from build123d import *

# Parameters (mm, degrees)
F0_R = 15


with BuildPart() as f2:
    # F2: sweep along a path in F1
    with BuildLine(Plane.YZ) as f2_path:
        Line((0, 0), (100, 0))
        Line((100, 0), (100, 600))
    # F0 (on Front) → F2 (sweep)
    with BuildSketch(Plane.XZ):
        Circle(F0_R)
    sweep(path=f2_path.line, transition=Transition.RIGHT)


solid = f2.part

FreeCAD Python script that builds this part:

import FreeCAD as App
import Part
import Sketcher

V = App.Vector
Q = App.Units.Quantity

doc = App.newDocument("Part")
params = doc.addObject("Spreadsheet::Sheet", "Params")
for row, (alias, value) in enumerate([
    ("sketch1_diameter", "30 mm"),
    ("sketch2_width", "100 mm"),
    ("sketch2_height", "600 mm"),
], start=1):
    params.set(f"A{row}", alias)
    params.set(f"B{row}", "=" + value)
    params.setAlias(f"B{row}", alias)

body = doc.addObject("PartDesign::Body", "Body")

# Sketch on XZ plane
sketch1 = doc.addObject("Sketcher::SketchObject", "Sketch")
body.addObject(sketch1)
sketch1.AttachmentSupport = (doc.XZ_Plane, [""])
sketch1.MapMode = "FlatFace"
sketch1.addGeometry(Part.Circle(V(0, 0, 0), V(0, 0, 1), 15), False)
sketch1.addConstraint(Sketcher.Constraint("Coincident", 0, 3, -1, 1))
sketch1.addConstraint(Sketcher.Constraint("Diameter", 0, Q("30 mm")))
sketch1.setExpression("Constraints[1]", "Params.sketch1_diameter")

# Sketch on YZ plane
sketch2 = doc.addObject("Sketcher::SketchObject", "Sketch001")
body.addObject(sketch2)
sketch2.AttachmentSupport = (doc.YZ_Plane, [""])
sketch2.MapMode = "FlatFace"
sketch2.addGeometry(Part.LineSegment(V(0, 0, 0), V(100, 0, 0)), False)
sketch2.addGeometry(Part.LineSegment(V(100, 0, 0), V(100, 600, 0)), False)
sketch2.addConstraint(Sketcher.Constraint("Coincident", 0, 2, 1, 1))
sketch2.addConstraint(Sketcher.Constraint("Horizontal", 0))
sketch2.addConstraint(Sketcher.Constraint("Vertical", 1))
sketch2.addConstraint(Sketcher.Constraint("Coincident", 0, 1, -1, 1))
sketch2.addConstraint(Sketcher.Constraint("DistanceX", 0, 1, 0, 2, Q("100 mm")))
sketch2.addConstraint(Sketcher.Constraint("DistanceY", 1, 1, 1, 2, Q("600 mm")))
sketch2.setExpression("Constraints[4]", "Params.sketch2_width")
sketch2.setExpression("Constraints[5]", "Params.sketch2_height")
doc.recompute()

additivepipe = doc.addObject("PartDesign::AdditivePipe", "AdditivePipe")
body.addObject(additivepipe)
additivepipe.Profile = sketch1
additivepipe.Spine = (sketch2, ["Edge1", "Edge2"])
additivepipe.Transition = "Right corner"

doc.recompute()
